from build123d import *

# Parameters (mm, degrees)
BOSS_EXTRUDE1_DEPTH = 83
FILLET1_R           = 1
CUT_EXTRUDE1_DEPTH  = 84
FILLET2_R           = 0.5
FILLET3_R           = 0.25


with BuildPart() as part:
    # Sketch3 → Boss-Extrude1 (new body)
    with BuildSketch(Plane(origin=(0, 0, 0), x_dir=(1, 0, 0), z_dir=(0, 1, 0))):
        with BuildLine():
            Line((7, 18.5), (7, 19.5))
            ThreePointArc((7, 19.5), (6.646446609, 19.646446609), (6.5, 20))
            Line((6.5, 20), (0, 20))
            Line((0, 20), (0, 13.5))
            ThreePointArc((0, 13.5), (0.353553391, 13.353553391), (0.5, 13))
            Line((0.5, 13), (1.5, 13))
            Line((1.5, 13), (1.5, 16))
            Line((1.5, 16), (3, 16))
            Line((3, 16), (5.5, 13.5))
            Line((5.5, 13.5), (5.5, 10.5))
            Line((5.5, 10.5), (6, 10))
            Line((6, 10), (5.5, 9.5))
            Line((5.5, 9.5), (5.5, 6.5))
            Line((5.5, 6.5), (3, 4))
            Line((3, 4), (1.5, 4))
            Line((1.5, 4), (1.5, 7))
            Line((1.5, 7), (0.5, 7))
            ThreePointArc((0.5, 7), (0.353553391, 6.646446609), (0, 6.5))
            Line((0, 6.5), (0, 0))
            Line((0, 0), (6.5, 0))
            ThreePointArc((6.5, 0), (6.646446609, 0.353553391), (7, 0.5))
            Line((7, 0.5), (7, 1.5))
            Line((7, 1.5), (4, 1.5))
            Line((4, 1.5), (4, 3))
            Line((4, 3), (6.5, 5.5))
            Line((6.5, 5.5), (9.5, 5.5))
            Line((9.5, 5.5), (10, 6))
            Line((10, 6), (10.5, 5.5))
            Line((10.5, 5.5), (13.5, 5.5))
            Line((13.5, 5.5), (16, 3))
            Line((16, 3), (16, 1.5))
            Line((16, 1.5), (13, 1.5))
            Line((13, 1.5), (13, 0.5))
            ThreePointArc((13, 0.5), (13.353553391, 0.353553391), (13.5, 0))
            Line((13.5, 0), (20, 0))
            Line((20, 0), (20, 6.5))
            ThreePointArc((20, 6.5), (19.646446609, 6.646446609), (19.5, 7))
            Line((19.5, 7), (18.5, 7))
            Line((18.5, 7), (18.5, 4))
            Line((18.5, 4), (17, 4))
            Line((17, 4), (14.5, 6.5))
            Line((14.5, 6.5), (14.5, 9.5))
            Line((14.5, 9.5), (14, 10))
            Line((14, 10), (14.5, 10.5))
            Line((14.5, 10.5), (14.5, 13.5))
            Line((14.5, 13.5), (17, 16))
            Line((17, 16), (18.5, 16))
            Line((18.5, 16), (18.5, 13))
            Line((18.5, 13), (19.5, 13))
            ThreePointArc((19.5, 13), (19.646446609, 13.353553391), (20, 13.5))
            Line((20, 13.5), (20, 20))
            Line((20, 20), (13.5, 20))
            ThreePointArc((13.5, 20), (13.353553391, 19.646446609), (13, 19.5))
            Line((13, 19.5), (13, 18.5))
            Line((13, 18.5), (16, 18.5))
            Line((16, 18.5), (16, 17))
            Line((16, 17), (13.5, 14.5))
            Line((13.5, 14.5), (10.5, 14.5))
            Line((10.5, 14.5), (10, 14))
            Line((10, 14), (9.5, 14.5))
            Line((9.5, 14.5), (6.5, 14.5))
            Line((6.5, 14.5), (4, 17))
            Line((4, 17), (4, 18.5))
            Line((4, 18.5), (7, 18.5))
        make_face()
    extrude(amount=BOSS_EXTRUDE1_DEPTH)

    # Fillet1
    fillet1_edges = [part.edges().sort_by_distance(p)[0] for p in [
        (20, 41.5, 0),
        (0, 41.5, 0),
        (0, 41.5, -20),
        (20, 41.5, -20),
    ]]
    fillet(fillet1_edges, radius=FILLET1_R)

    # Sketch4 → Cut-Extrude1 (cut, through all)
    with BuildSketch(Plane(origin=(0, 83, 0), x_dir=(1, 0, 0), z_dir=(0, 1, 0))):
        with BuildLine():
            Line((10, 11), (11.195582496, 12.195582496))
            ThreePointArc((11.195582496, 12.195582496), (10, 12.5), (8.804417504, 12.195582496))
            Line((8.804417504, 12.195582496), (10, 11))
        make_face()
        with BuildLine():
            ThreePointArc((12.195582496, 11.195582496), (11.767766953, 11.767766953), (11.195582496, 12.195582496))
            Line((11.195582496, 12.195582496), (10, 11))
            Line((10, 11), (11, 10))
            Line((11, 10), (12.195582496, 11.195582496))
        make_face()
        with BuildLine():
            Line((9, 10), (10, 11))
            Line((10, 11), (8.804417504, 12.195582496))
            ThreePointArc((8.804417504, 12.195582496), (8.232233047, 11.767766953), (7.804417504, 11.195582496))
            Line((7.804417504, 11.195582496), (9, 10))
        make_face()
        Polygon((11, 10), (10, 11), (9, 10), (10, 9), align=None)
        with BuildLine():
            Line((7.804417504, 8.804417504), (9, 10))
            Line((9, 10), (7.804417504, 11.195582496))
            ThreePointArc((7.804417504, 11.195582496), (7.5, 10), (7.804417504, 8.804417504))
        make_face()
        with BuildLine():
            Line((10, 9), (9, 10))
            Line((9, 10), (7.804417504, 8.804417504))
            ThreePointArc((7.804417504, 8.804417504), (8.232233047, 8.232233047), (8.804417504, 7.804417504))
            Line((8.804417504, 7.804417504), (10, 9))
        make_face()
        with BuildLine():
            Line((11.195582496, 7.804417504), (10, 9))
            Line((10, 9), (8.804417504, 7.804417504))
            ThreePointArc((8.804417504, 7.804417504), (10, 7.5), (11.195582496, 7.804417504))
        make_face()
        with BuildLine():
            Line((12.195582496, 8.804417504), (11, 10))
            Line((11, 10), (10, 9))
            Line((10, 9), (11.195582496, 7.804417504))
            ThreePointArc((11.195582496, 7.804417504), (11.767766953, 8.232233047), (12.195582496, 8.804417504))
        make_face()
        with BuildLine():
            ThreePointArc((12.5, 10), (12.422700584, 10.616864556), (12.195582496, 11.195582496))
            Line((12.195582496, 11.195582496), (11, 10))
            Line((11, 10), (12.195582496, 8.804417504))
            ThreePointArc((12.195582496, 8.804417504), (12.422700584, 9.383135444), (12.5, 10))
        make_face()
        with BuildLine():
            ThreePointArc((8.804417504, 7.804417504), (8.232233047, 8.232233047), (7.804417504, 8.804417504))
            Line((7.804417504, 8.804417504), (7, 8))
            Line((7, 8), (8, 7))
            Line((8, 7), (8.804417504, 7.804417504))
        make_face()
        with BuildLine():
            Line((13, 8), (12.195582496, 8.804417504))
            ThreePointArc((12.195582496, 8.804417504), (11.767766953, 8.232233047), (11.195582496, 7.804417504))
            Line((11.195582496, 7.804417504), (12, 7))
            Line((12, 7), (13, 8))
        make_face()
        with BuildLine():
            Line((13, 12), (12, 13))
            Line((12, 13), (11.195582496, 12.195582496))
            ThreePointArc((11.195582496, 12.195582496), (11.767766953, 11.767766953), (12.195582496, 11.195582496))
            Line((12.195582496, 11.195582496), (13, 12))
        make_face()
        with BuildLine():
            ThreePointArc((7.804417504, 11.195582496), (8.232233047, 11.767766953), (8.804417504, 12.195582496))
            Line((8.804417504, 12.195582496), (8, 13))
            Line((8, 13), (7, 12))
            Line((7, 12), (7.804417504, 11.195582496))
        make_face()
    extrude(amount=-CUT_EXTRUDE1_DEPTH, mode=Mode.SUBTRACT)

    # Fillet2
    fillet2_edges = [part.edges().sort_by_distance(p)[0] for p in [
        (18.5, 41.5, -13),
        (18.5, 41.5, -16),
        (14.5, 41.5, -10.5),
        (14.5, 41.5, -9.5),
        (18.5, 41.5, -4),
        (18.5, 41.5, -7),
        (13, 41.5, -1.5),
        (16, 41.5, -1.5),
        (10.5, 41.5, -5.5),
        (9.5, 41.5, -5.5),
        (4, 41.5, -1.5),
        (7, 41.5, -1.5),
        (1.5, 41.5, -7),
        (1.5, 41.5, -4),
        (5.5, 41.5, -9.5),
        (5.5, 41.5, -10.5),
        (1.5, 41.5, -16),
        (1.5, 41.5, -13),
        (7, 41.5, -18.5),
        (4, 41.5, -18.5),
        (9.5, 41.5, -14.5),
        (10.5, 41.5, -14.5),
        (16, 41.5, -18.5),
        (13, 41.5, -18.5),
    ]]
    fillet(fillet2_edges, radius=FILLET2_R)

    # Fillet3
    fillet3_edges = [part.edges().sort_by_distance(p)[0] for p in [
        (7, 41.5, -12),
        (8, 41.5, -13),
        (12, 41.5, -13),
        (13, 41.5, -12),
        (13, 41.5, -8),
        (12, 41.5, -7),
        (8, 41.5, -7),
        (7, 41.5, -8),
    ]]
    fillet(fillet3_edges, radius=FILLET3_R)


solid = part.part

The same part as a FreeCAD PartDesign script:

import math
import FreeCAD as App
import Part
import Sketcher
from FreeCAD import Vector


def edges_at(feature, points):
    """Names of the edges that pass closest to the given points."""
    edges = feature.Shape.Edges
    near = lambda p: min(range(len(edges)), key=lambda i: edges[i].distToShape(Part.Vertex(*p))[0])
    return sorted({f"Edge{near(p) + 1}" for p in points})

doc = App.newDocument("Part")
body = doc.addObject("PartDesign::Body", "Body")

# Sketch on XZ plane
sketch1 = doc.addObject("Sketcher::SketchObject", "Sketch")
body.addObject(sketch1)
sketch1.AttachmentSupport = (doc.XZ_Plane, [""])
sketch1.MapMode = "FlatFace"
sketch1.addGeometry(Part.LineSegment(Vector(7, -18.5, 0), Vector(7, -19.5, 0)), False)
sketch1.addGeometry(Part.ArcOfCircle(Part.Circle(Vector(7, -20, 0), Vector(0, 0, 1), 0.5), math.radians(90), math.radians(180)), False)
sketch1.addGeometry(Part.LineSegment(Vector(6.5, -20, 0), Vector(0, -20, 0)), False)
sketch1.addGeometry(Part.LineSegment(Vector(0, -20, 0), Vector(0, -13.5, 0)), False)
sketch1.addGeometry(Part.ArcOfCircle(Part.Circle(Vector(0, -13, 0), Vector(0, 0, 1), 0.5), math.radians(-90), math.radians(0)), False)
sketch1.addGeometry(Part.LineSegment(Vector(0.5, -13, 0), Vector(1.5, -13, 0)), False)
sketch1.addGeometry(Part.LineSegment(Vector(1.5, -13, 0), Vector(1.5, -16, 0)), False)
sketch1.addGeometry(Part.LineSegment(Vector(1.5, -16, 0), Vector(3, -16, 0)), False)
sketch1.addGeometry(Part.LineSegment(Vector(3, -16, 0), Vector(5.5, -13.5, 0)), False)
sketch1.addGeometry(Part.LineSegment(Vector(5.5, -13.5, 0), Vector(5.5, -10.5, 0)), False)
sketch1.addGeometry(Part.LineSegment(Vector(5.5, -10.5, 0), Vector(6, -10, 0)), False)
sketch1.addGeometry(Part.LineSegment(Vector(6, -10, 0), Vector(5.5, -9.5, 0)), False)
sketch1.addGeometry(Part.LineSegment(Vector(5.5, -9.5, 0), Vector(5.5, -6.5, 0)), False)
sketch1.addGeometry(Part.LineSegment(Vector(5.5, -6.5, 0), Vector(3, -4, 0)), False)
sketch1.addGeometry(Part.LineSegment(Vector(3, -4, 0), Vector(1.5, -4, 0)), False)
sketch1.addGeometry(Part.LineSegment(Vector(1.5, -4, 0), Vector(1.5, -7, 0)), False)
sketch1.addGeometry(Part.LineSegment(Vector(1.5, -7, 0), Vector(0.5, -7, 0)), False)
sketch1.addGeometry(Part.ArcOfCircle(Part.Circle(Vector(0, -7, 0), Vector(0, 0, 1), 0.5), math.radians(0), math.radians(90)), False)
sketch1.addGeometry(Part.LineSegment(Vector(0, -6.5, 0), Vector(0, 0, 0)), False)
sketch1.addGeometry(Part.LineSegment(Vector(0, 0, 0), Vector(6.5, 0, 0)), False)
sketch1.addGeometry(Part.ArcOfCircle(Part.Circle(Vector(7, 0, 0), Vector(0, 0, 1), 0.5), math.radians(180), math.radians(270)), False)
sketch1.addGeometry(Part.LineSegment(Vector(7, -0.5, 0), Vector(7, -1.5, 0)), False)
sketch1.addGeometry(Part.LineSegment(Vector(7, -1.5, 0), Vector(4, -1.5, 0)), False)
sketch1.addGeometry(Part.LineSegment(Vector(4, -1.5, 0), Vector(4, -3, 0)), False)
sketch1.addGeometry(Part.LineSegment(Vector(4, -3, 0), Vector(6.5, -5.5, 0)), False)
sketch1.addGeometry(Part.LineSegment(Vector(6.5, -5.5, 0), Vector(9.5, -5.5, 0)), False)
sketch1.addGeometry(Part.LineSegment(Vector(9.5, -5.5, 0), Vector(10, -6, 0)), False)
sketch1.addGeometry(Part.LineSegment(Vector(10, -6, 0), Vector(10.5, -5.5, 0)), False)
sketch1.addGeometry(Part.LineSegment(Vector(10.5, -5.5, 0), Vector(13.5, -5.5, 0)), False)
sketch1.addGeometry(Part.LineSegment(Vector(13.5, -5.5, 0), Vector(16, -3, 0)), False)
sketch1.addGeometry(Part.LineSegment(Vector(16, -3, 0), Vector(16, -1.5, 0)), False)
sketch1.addGeometry(Part.LineSegment(Vector(16, -1.5, 0), Vector(13, -1.5, 0)), False)
sketch1.addGeometry(Part.LineSegment(Vector(13, -1.5, 0), Vector(13, -0.5, 0)), False)
sketch1.addGeometry(Part.ArcOfCircle(Part.Circle(Vector(13, 0, 0), Vector(0, 0, 1), 0.5), math.radians(-90), math.radians(0)), False)
sketch1.addGeometry(Part.LineSegment(Vector(13.5, 0, 0), Vector(20, 0, 0)), False)
sketch1.addGeometry(Part.LineSegment(Vector(20, 0, 0), Vector(20, -6.5, 0)), False)
sketch1.addGeometry(Part.ArcOfCircle(Part.Circle(Vector(20, -7, 0), Vector(0, 0, 1), 0.5), math.radians(90), math.radians(180)), False)
sketch1.addGeometry(Part.LineSegment(Vector(19.5, -7, 0), Vector(18.5, -7, 0)), False)
sketch1.addGeometry(Part.LineSegment(Vector(18.5, -7, 0), Vector(18.5, -4, 0)), False)
sketch1.addGeometry(Part.LineSegment(Vector(18.5, -4, 0), Vector(17, -4, 0)), False)
sketch1.addGeometry(Part.LineSegment(Vector(17, -4, 0), Vector(14.5, -6.5, 0)), False)
sketch1.addGeometry(Part.LineSegment(Vector(14.5, -6.5, 0), Vector(14.5, -9.5, 0)), False)
sketch1.addGeometry(Part.LineSegment(Vector(14.5, -9.5, 0), Vector(14, -10, 0)), False)
sketch1.addGeometry(Part.LineSegment(Vector(14, -10, 0), Vector(14.5, -10.5, 0)), False)
sketch1.addGeometry(Part.LineSegment(Vector(14.5, -10.5, 0), Vector(14.5, -13.5, 0)), False)
sketch1.addGeometry(Part.LineSegment(Vector(14.5, -13.5, 0), Vector(17, -16, 0)), False)
sketch1.addGeometry(Part.LineSegment(Vector(17, -16, 0), Vector(18.5, -16, 0)), False)
sketch1.addGeometry(Part.LineSegment(Vector(18.5, -16, 0), Vector(18.5, -13, 0)), False)
sketch1.addGeometry(Part.LineSegment(Vector(18.5, -13, 0), Vector(19.5, -13, 0)), False)
sketch1.addGeometry(Part.ArcOfCircle(Part.Circle(Vector(20, -13, 0), Vector(0, 0, 1), 0.5), math.radians(180), math.radians(270)), False)
sketch1.addGeometry(Part.LineSegment(Vector(20, -13.5, 0), Vector(20, -20, 0)), False)
sketch1.addGeometry(Part.LineSegment(Vector(20, -20, 0), Vector(13.5, -20, 0)), False)
sketch1.addGeometry(Part.ArcOfCircle(Part.Circle(Vector(13, -20, 0), Vector(0, 0, 1), 0.5), math.radians(0), math.radians(90)), False)
sketch1.addGeometry(Part.LineSegment(Vector(13, -19.5, 0), Vector(13, -18.5, 0)), False)
sketch1.addGeometry(Part.LineSegment(Vector(13, -18.5, 0), Vector(16, -18.5, 0)), False)
sketch1.addGeometry(Part.LineSegment(Vector(16, -18.5, 0), Vector(16, -17, 0)), False)
sketch1.addGeometry(Part.LineSegment(Vector(16, -17, 0), Vector(13.5, -14.5, 0)), False)
sketch1.addGeometry(Part.LineSegment(Vector(13.5, -14.5, 0), Vector(10.5, -14.5, 0)), False)
sketch1.addGeometry(Part.LineSegment(Vector(10.5, -14.5, 0), Vector(10, -14, 0)), False)
sketch1.addGeometry(Part.LineSegment(Vector(10, -14, 0), Vector(9.5, -14.5, 0)), False)
sketch1.addGeometry(Part.LineSegment(Vector(9.5, -14.5, 0), Vector(6.5, -14.5, 0)), False)
sketch1.addGeometry(Part.LineSegment(Vector(6.5, -14.5, 0), Vector(4, -17, 0)), False)
sketch1.addGeometry(Part.LineSegment(Vector(4, -17, 0), Vector(4, -18.5, 0)), False)
sketch1.addGeometry(Part.LineSegment(Vector(4, -18.5, 0), Vector(7, -18.5, 0)), False)
sketch1.addConstraint(Sketcher.Constraint("Coincident", 0, 2, 1, 1))
sketch1.addConstraint(Sketcher.Constraint("Coincident", 1, 2, 2, 1))
sketch1.addConstraint(Sketcher.Constraint("Coincident", 2, 2, 3, 1))
sketch1.addConstraint(Sketcher.Constraint("Coincident", 3, 2, 4, 1))
sketch1.addConstraint(Sketcher.Constraint("Coincident", 4, 2, 5, 1))
sketch1.addConstraint(Sketcher.Constraint("Coincident", 5, 2, 6, 1))
sketch1.addConstraint(Sketcher.Constraint("Coincident", 6, 2, 7, 1))
sketch1.addConstraint(Sketcher.Constraint("Coincident", 7, 2, 8, 1))
sketch1.addConstraint(Sketcher.Constraint("Coincident", 8, 2, 9, 1))
sketch1.addConstraint(Sketcher.Constraint("Coincident", 9, 2, 10, 1))
sketch1.addConstraint(Sketcher.Constraint("Coincident", 10, 2, 11, 1))
sketch1.addConstraint(Sketcher.Constraint("Coincident", 11, 2, 12, 1))
sketch1.addConstraint(Sketcher.Constraint("Coincident", 12, 2, 13, 1))
sketch1.addConstraint(Sketcher.Constraint("Coincident", 13, 2, 14, 1))
sketch1.addConstraint(Sketcher.Constraint("Coincident", 14, 2, 15, 1))
sketch1.addConstraint(Sketcher.Constraint("Coincident", 15, 2, 16, 1))
sketch1.addConstraint(Sketcher.Constraint("Coincident", 16, 2, 17, 1))
sketch1.addConstraint(Sketcher.Constraint("Coincident", 17, 2, 18, 1))
sketch1.addConstraint(Sketcher.Constraint("Coincident", 18, 2, 19, 1))
sketch1.addConstraint(Sketcher.Constraint("Coincident", 19, 2, 20, 1))
sketch1.addConstraint(Sketcher.Constraint("Coincident", 20, 2, 21, 1))
sketch1.addConstraint(Sketcher.Constraint("Coincident", 21, 2, 22, 1))
sketch1.addConstraint(Sketcher.Constraint("Coincident", 22, 2, 23, 1))
sketch1.addConstraint(Sketcher.Constraint("Coincident", 23, 2, 24, 1))
sketch1.addConstraint(Sketcher.Constraint("Coincident", 24, 2, 25, 1))
sketch1.addConstraint(Sketcher.Constraint("Coincident", 25, 2, 26, 1))
sketch1.addConstraint(Sketcher.Constraint("Coincident", 26, 2, 27, 1))
sketch1.addConstraint(Sketcher.Constraint("Coincident", 27, 2, 28, 1))
sketch1.addConstraint(Sketcher.Constraint("Coincident", 28, 2, 29, 1))
sketch1.addConstraint(Sketcher.Constraint("Coincident", 29, 2, 30, 1))
sketch1.addConstraint(Sketcher.Constraint("Coincident", 30, 2, 31, 1))
sketch1.addConstraint(Sketcher.Constraint("Coincident", 31, 2, 32, 1))
sketch1.addConstraint(Sketcher.Constraint("Coincident", 32, 2, 33, 1))
sketch1.addConstraint(Sketcher.Constraint("Coincident", 33, 2, 34, 1))
sketch1.addConstraint(Sketcher.Constraint("Coincident", 34, 2, 35, 1))
sketch1.addConstraint(Sketcher.Constraint("Coincident", 35, 2, 36, 1))
sketch1.addConstraint(Sketcher.Constraint("Coincident", 36, 2, 37, 1))
sketch1.addConstraint(Sketcher.Constraint("Coincident", 37, 2, 38, 1))
sketch1.addConstraint(Sketcher.Constraint("Coincident", 38, 2, 39, 1))
sketch1.addConstraint(Sketcher.Constraint("Coincident", 39, 2, 40, 1))
sketch1.addConstraint(Sketcher.Constraint("Coincident", 40, 2, 41, 1))
sketch1.addConstraint(Sketcher.Constraint("Coincident", 41, 2, 42, 1))
sketch1.addConstraint(Sketcher.Constraint("Coincident", 42, 2, 43, 1))
sketch1.addConstraint(Sketcher.Constraint("Coincident", 43, 2, 44, 1))
sketch1.addConstraint(Sketcher.Constraint("Coincident", 44, 2, 45, 1))
sketch1.addConstraint(Sketcher.Constraint("Coincident", 45, 2, 46, 1))
sketch1.addConstraint(Sketcher.Constraint("Coincident", 46, 2, 47, 1))
sketch1.addConstraint(Sketcher.Constraint("Coincident", 47, 2, 48, 1))
sketch1.addConstraint(Sketcher.Constraint("Coincident", 48, 2, 49, 1))
sketch1.addConstraint(Sketcher.Constraint("Coincident", 49, 2, 50, 1))
sketch1.addConstraint(Sketcher.Constraint("Coincident", 50, 2, 51, 1))
sketch1.addConstraint(Sketcher.Constraint("Coincident", 51, 2, 52, 1))
sketch1.addConstraint(Sketcher.Constraint("Coincident", 52, 2, 53, 1))
sketch1.addConstraint(Sketcher.Constraint("Coincident", 53, 2, 54, 1))
sketch1.addConstraint(Sketcher.Constraint("Coincident", 54, 2, 55, 1))
sketch1.addConstraint(Sketcher.Constraint("Coincident", 55, 2, 56, 1))
sketch1.addConstraint(Sketcher.Constraint("Coincident", 56, 2, 57, 1))
sketch1.addConstraint(Sketcher.Constraint("Coincident", 57, 2, 58, 1))
sketch1.addConstraint(Sketcher.Constraint("Coincident", 58, 2, 59, 1))
sketch1.addConstraint(Sketcher.Constraint("Coincident", 59, 2, 60, 1))
sketch1.addConstraint(Sketcher.Constraint("Coincident", 60, 2, 61, 1))
sketch1.addConstraint(Sketcher.Constraint("Coincident", 61, 2, 62, 1))
sketch1.addConstraint(Sketcher.Constraint("Coincident", 62, 2, 63, 1))
sketch1.addConstraint(Sketcher.Constraint("Coincident", 63, 2, 0, 1))
sketch1.addConstraint(Sketcher.Constraint("Vertical", 0))
sketch1.addConstraint(Sketcher.Constraint("Horizontal", 2))
sketch1.addConstraint(Sketcher.Constraint("Vertical", 3))
sketch1.addConstraint(Sketcher.Constraint("Horizontal", 5))
sketch1.addConstraint(Sketcher.Constraint("Vertical", 6))
sketch1.addConstraint(Sketcher.Constraint("Horizontal", 7))
sketch1.addConstraint(Sketcher.Constraint("Vertical", 9))
sketch1.addConstraint(Sketcher.Constraint("Vertical", 12))
sketch1.addConstraint(Sketcher.Constraint("Horizontal", 14))
sketch1.addConstraint(Sketcher.Constraint("Vertical", 15))
sketch1.addConstraint(Sketcher.Constraint("Horizontal", 16))
sketch1.addConstraint(Sketcher.Constraint("Vertical", 18))
sketch1.addConstraint(Sketcher.Constraint("Horizontal", 19))
sketch1.addConstraint(Sketcher.Constraint("Vertical", 21))
sketch1.addConstraint(Sketcher.Constraint("Horizontal", 22))
sketch1.addConstraint(Sketcher.Constraint("Vertical", 23))
sketch1.addConstraint(Sketcher.Constraint("Horizontal", 25))
sketch1.addConstraint(Sketcher.Constraint("Horizontal", 28))
sketch1.addConstraint(Sketcher.Constraint("Vertical", 30))
sketch1.addConstraint(Sketcher.Constraint("Horizontal", 31))
sketch1.addConstraint(Sketcher.Constraint("Vertical", 32))
sketch1.addConstraint(Sketcher.Constraint("Horizontal", 34))
sketch1.addConstraint(Sketcher.Constraint("Vertical", 35))
sketch1.addConstraint(Sketcher.Constraint("Horizontal", 37))
sketch1.addConstraint(Sketcher.Constraint("Vertical", 38))
sketch1.addConstraint(Sketcher.Constraint("Horizontal", 39))
sketch1.addConstraint(Sketcher.Constraint("Vertical", 41))
sketch1.addConstraint(Sketcher.Constraint("Vertical", 44))
sketch1.addConstraint(Sketcher.Constraint("Horizontal", 46))
sketch1.addConstraint(Sketcher.Constraint("Vertical", 47))
sketch1.addConstraint(Sketcher.Constraint("Horizontal", 48))
sketch1.addConstraint(Sketcher.Constraint("Vertical", 50))
sketch1.addConstraint(Sketcher.Constraint("Horizontal", 51))
sketch1.addConstraint(Sketcher.Constraint("Vertical", 53))
sketch1.addConstraint(Sketcher.Constraint("Horizontal", 54))
sketch1.addConstraint(Sketcher.Constraint("Vertical", 55))
sketch1.addConstraint(Sketcher.Constraint("Horizontal", 57))
sketch1.addConstraint(Sketcher.Constraint("Horizontal", 60))
sketch1.addConstraint(Sketcher.Constraint("Vertical", 62))
sketch1.addConstraint(Sketcher.Constraint("Horizontal", 63))
sketch1.addConstraint(Sketcher.Constraint("Coincident", 18, 2, -1, 1))
sketch1.addConstraint(Sketcher.Constraint("Equal", 1, 4))
sketch1.addConstraint(Sketcher.Constraint("Equal", 4, 17))
sketch1.addConstraint(Sketcher.Constraint("Equal", 17, 20))
sketch1.addConstraint(Sketcher.Constraint("Equal", 20, 33))
sketch1.addConstraint(Sketcher.Constraint("Equal", 33, 36))
sketch1.addConstraint(Sketcher.Constraint("Equal", 36, 49))
sketch1.addConstraint(Sketcher.Constraint("Equal", 49, 52))
sketch1.addConstraint(Sketcher.Constraint("PointOnObject", 4, 3, -2))
sketch1.addConstraint(Sketcher.Constraint("PointOnObject", 17, 3, -2))
sketch1.addConstraint(Sketcher.Constraint("PointOnObject", 20, 3, -1))
sketch1.addConstraint(Sketcher.Constraint("PointOnObject", 33, 3, -1))
sketch1.addConstraint(Sketcher.Constraint("PointOnObject", 2, 2, -2))
sketch1.addConstraint(Sketcher.Constraint("PointOnObject", 33, 2, -1))
sketch1.addConstraint(Sketcher.Constraint("Parallel", 8, 10))
sketch1.addConstraint(Sketcher.Constraint("Perpendicular", 10, 11))
sketch1.addConstraint(Sketcher.Constraint("Parallel", 11, 13))
sketch1.addConstraint(Sketcher.Constraint("Parallel", 13, 24))
sketch1.addConstraint(Sketcher.Constraint("Parallel", 24, 26))
sketch1.addConstraint(Sketcher.Constraint("Perpendicular", 26, 27))
sketch1.addConstraint(Sketcher.Constraint("Parallel", 27, 29))
sketch1.addConstraint(Sketcher.Constraint("Parallel", 29, 40))
sketch1.addConstraint(Sketcher.Constraint("Parallel", 40, 42))
sketch1.addConstraint(Sketcher.Constraint("Perpendicular", 42, 43))
sketch1.addConstraint(Sketcher.Constraint("Parallel", 43, 45))
sketch1.addConstraint(Sketcher.Constraint("Parallel", 45, 56))
sketch1.addConstraint(Sketcher.Constraint("Parallel", 56, 58))
sketch1.addConstraint(Sketcher.Constraint("Perpendicular", 58, 59))
sketch1.addConstraint(Sketcher.Constraint("Parallel", 59, 61))
sketch1.addConstraint(Sketcher.Constraint("Horizontal", 17, 3, 36, 3))
sketch1.addConstraint(Sketcher.Constraint("Horizontal", 4, 3, 49, 3))
sketch1.addConstraint(Sketcher.Constraint("Horizontal", 1, 3, 52, 3))
sketch1.addConstraint(Sketcher.Constraint("Horizontal", 52, 3, 1, 2))
sketch1.addConstraint(Sketcher.Constraint("Horizontal", 49, 3, 4, 2))
sketch1.addConstraint(Sketcher.Constraint("Horizontal", 3, 2, 8, 2))
sketch1.addConstraint(Sketcher.Constraint("Horizontal", 36, 3, 15, 2))
sketch1.addConstraint(Sketcher.Constraint("Horizontal", 12, 2, 17, 2))
sketch1.addConstraint(Sketcher.Constraint("Horizontal", 25, 2, 27, 2))
sketch1.addConstraint(Sketcher.Constraint("Horizontal", 23, 2, 29, 2))
sketch1.addConstraint(Sketcher.Constraint("Horizontal", 22, 2, 30, 2))
sketch1.addConstraint(Sketcher.Constraint("Horizontal", 16, 2, 36, 2))
sketch1.addConstraint(Sketcher.Constraint("Horizontal", 14, 2, 38, 2))
sketch1.addConstraint(Sketcher.Constraint("Horizontal", 35, 2, 40, 2))
sketch1.addConstraint(Sketcher.Constraint("Horizontal", 11, 2, 41, 2))
sketch1.addConstraint(Sketcher.Constraint("Horizontal", 10, 2, 42, 2))
sketch1.addConstraint(Sketcher.Constraint("Horizontal", 9, 2, 43, 2))
sketch1.addConstraint(Sketcher.Constraint("Horizontal", 8, 2, 44, 2))
sketch1.addConstraint(Sketcher.Constraint("Horizontal", 7, 2, 45, 2))
sketch1.addConstraint(Sketcher.Constraint("Horizontal", 5, 2, 47, 2))
sketch1.addConstraint(Sketcher.Constraint("Horizontal", 2, 2, 50, 2))
sketch1.addConstraint(Sketcher.Constraint("Horizontal", 57, 2, 59, 2))
sketch1.addConstraint(Sketcher.Constraint("Horizontal", 55, 2, 61, 2))
sketch1.addConstraint(Sketcher.Constraint("Horizontal", 54, 2, 62, 2))
sketch1.addConstraint(Sketcher.Constraint("Vertical", 1, 3, 20, 3))
sketch1.addConstraint(Sketcher.Constraint("Vertical", 36, 3, 49, 3))
sketch1.addConstraint(Sketcher.Constraint("Vertical", 33, 3, 52, 3))
sketch1.addConstraint(Sketcher.Constraint("Vertical", 20, 3, 0, 2))
sketch1.addConstraint(Sketcher.Constraint("Vertical", 9, 2, 11, 2))
sketch1.addConstraint(Sketcher.Constraint("Vertical", 7, 2, 13, 2))
sketch1.addConstraint(Sketcher.Constraint("Vertical", 6, 2, 14, 2))
sketch1.addConstraint(Sketcher.Constraint("Vertical", 0, 2, 20, 2))
sketch1.addConstraint(Sketcher.Constraint("Vertical", 19, 2, 24, 2))
sketch1.addConstraint(Sketcher.Constraint("Vertical", 52, 3, 31, 2))
sketch1.addConstraint(Sketcher.Constraint("Vertical", 28, 2, 33, 2))
sketch1.addConstraint(Sketcher.Constraint("Vertical", 49, 3, 34, 2))
sketch1.addConstraint(Sketcher.Constraint("Vertical", 41, 2, 43, 2))
sketch1.addConstraint(Sketcher.Constraint("Vertical", 38, 2, 46, 2))
sketch1.addConstraint(Sketcher.Constraint("Vertical", 35, 2, 49, 2))
sketch1.addConstraint(Sketcher.Constraint("Vertical", 32, 2, 52, 2))
sketch1.addConstraint(Sketcher.Constraint("Vertical", 30, 2, 54, 2))
sketch1.addConstraint(Sketcher.Constraint("Vertical", 51, 2, 56, 2))
sketch1.addConstraint(Sketcher.Constraint("Vertical", 27, 2, 57, 2))
sketch1.addConstraint(Sketcher.Constraint("Vertical", 26, 2, 58, 2))
sketch1.addConstraint(Sketcher.Constraint("Vertical", 24, 2, 60, 2))
sketch1.addConstraint(Sketcher.Constraint("Equal", 22, 25))
sketch1.addConstraint(Sketcher.Constraint("Equal", 25, 28))
sketch1.addConstraint(Sketcher.Constraint("Equal", 19, 34))
sketch1.addConstraint(Sketcher.Constraint("Equal", 16, 37))
sketch1.addConstraint(Sketcher.Constraint("Equal", 14, 39))
sketch1.addConstraint(Sketcher.Constraint("Equal", 48, 0))
sketch1.addConstraint(Sketcher.Constraint("Equal", 51, 3))
sketch1.addConstraint(Sketcher.Constraint("Equal", 63, 6))
sketch1.addConstraint(Sketcher.Constraint("Equal", 6, 9))
sketch1.addConstraint(Sketcher.Constraint("Equal", 9, 12))
sketch1.addConstraint(Sketcher.Constraint("Equal", 3, 18))
sketch1.addConstraint(Sketcher.Constraint("Equal", 0, 21))
sketch1.addConstraint(Sketcher.Constraint("Equal", 46, 23))
sketch1.addConstraint(Sketcher.Constraint("Equal", 30, 55))
sketch1.addConstraint(Sketcher.Constraint("Equal", 11, 26))
sketch1.addConstraint(Sketcher.Constraint("Radius", 1, 0.5))
sketch1.addConstraint(Sketcher.Constraint("DistanceX", 5, 1, 5, 2, 1.0))
sketch1.addConstraint(Sketcher.Constraint("DistanceX", 22, 2, 22, 1, 3.0))
sketch1.addConstraint(Sketcher.Constraint("DistanceX", 2, 2, 2, 1, 6.5))
sketch1.addConstraint(Sketcher.Constraint("DistanceX", 7, 1, 7, 2, 1.5))
sketch1.addConstraint(Sketcher.Constraint("DistanceY", 1, 3, -1, 1, 20.0))
pad1 = doc.addObject("PartDesign::Pad", "Pad")
body.addObject(pad1)
pad1.Profile = sketch1
pad1.Length = 83
pad1.Reversed = True
doc.recompute()

fillet = doc.addObject("PartDesign::Fillet", "Fillet")
body.addObject(fillet)
fillet.Base = (pad1, edges_at(pad1, [
    (20, 41.5, 0),
    (0, 41.5, 0),
    (0, 41.5, -20),
    (20, 41.5, -20),
]))
fillet.Radius = 1

# Sketch on XZ plane
sketch2 = doc.addObject("Sketcher::SketchObject", "Sketch001")
body.addObject(sketch2)
sketch2.AttachmentSupport = (doc.XZ_Plane, [""])
sketch2.MapMode = "FlatFace"
sketch2.AttachmentOffset = App.Placement(Vector(0, 0, -83), App.Rotation())
sketch2.addGeometry(Part.ArcOfCircle(Part.Circle(Vector(10, -10, 0), Vector(0, 0, 1), 2.5), math.radians(-118.57006), math.radians(-61.42994)), False)
sketch2.addGeometry(Part.LineSegment(Vector(8.804418, -12.195582, 0), Vector(8, -13, 0)), False)
sketch2.addGeometry(Part.LineSegment(Vector(8, -13, 0), Vector(7, -12, 0)), False)
sketch2.addGeometry(Part.LineSegment(Vector(7, -12, 0), Vector(7.804418, -11.195582, 0)), False)
sketch2.addGeometry(Part.ArcOfCircle(Part.Circle(Vector(10, -10, 0), Vector(0, 0, 1), 2.5), math.radians(151.42994), math.radians(208.57006)), False)
sketch2.addGeometry(Part.LineSegment(Vector(7.804418, -8.804418, 0), Vector(7, -8, 0)), False)
sketch2.addGeometry(Part.LineSegment(Vector(7, -8, 0), Vector(8, -7, 0)), False)
sketch2.addGeometry(Part.LineSegment(Vector(8, -7, 0), Vector(8.804418, -7.804418, 0)), False)
sketch2.addGeometry(Part.ArcOfCircle(Part.Circle(Vector(10, -10, 0), Vector(0, 0, 1), 2.5), math.radians(61.42994), math.radians(118.57006)), False)
sketch2.addGeometry(Part.LineSegment(Vector(11.195582, -7.804418, 0), Vector(12, -7, 0)), False)
sketch2.addGeometry(Part.LineSegment(Vector(12, -7, 0), Vector(13, -8, 0)), False)
sketch2.addGeometry(Part.LineSegment(Vector(13, -8, 0), Vector(12.195582, -8.804418, 0)), False)
sketch2.addGeometry(Part.ArcOfCircle(Part.Circle(Vector(10, -10, 0), Vector(0, 0, 1), 2.5), math.radians(0), math.radians(28.57006)), False)
sketch2.addGeometry(Part.ArcOfCircle(Part.Circle(Vector(10, -10, 0), Vector(0, 0, 1), 2.5), math.radians(-28.57006), math.radians(0)), False)
sketch2.addGeometry(Part.LineSegment(Vector(12.195582, -11.195582, 0), Vector(13, -12, 0)), False)
sketch2.addGeometry(Part.LineSegment(Vector(13, -12, 0), Vector(12, -13, 0)), False)
sketch2.addGeometry(Part.LineSegment(Vector(12, -13, 0), Vector(11.195582, -12.195582, 0)), False)
sketch2.addConstraint(Sketcher.Constraint("Coincident", 0, 1, 1, 1))
sketch2.addConstraint(Sketcher.Constraint("Coincident", 1, 2, 2, 1))
sketch2.addConstraint(Sketcher.Constraint("Coincident", 2, 2, 3, 1))
sketch2.addConstraint(Sketcher.Constraint("Coincident", 3, 2, 4, 2))
sketch2.addConstraint(Sketcher.Constraint("Coincident", 4, 1, 5, 1))
sketch2.addConstraint(Sketcher.Constraint("Coincident", 5, 2, 6, 1))
sketch2.addConstraint(Sketcher.Constraint("Coincident", 6, 2, 7, 1))
sketch2.addConstraint(Sketcher.Constraint("Coincident", 7, 2, 8, 2))
sketch2.addConstraint(Sketcher.Constraint("Coincident", 8, 1, 9, 1))
sketch2.addConstraint(Sketcher.Constraint("Coincident", 9, 2, 10, 1))
sketch2.addConstraint(Sketcher.Constraint("Coincident", 10, 2, 11, 1))
sketch2.addConstraint(Sketcher.Constraint("Coincident", 11, 2, 12, 2))
sketch2.addConstraint(Sketcher.Constraint("Tangent", 12, 1, 13, 2))
sketch2.addConstraint(Sketcher.Constraint("Coincident", 13, 1, 14, 1))
sketch2.addConstraint(Sketcher.Constraint("Coincident", 14, 2, 15, 1))
sketch2.addConstraint(Sketcher.Constraint("Coincident", 15, 2, 16, 1))
sketch2.addConstraint(Sketcher.Constraint("Coincident", 16, 2, 0, 2))
sketch2.addConstraint(Sketcher.Constraint("Coincident", 4, 3, 0, 3))
sketch2.addConstraint(Sketcher.Constraint("Coincident", 8, 3, 0, 3))
sketch2.addConstraint(Sketcher.Constraint("Coincident", 12, 3, 0, 3))
sketch2.addConstraint(Sketcher.Constraint("Equal", 0, 4))
sketch2.addConstraint(Sketcher.Constraint("Equal", 4, 8))
sketch2.addConstraint(Sketcher.Constraint("Equal", 8, 12))
sketch2.addConstraint(Sketcher.Constraint("Equal", 12, 13))
sketch2.addConstraint(Sketcher.Constraint("Perpendicular", 1, 2))
sketch2.addConstraint(Sketcher.Constraint("Perpendicular", 2, 3))
sketch2.addConstraint(Sketcher.Constraint("Perpendicular", 3, 5))
sketch2.addConstraint(Sketcher.Constraint("Perpendicular", 5, 6))
sketch2.addConstraint(Sketcher.Constraint("Perpendicular", 6, 7))
sketch2.addConstraint(Sketcher.Constraint("Perpendicular", 7, 9))
sketch2.addConstraint(Sketcher.Constraint("Perpendicular", 9, 10))
sketch2.addConstraint(Sketcher.Constraint("Perpendicular", 10, 11))
sketch2.addConstraint(Sketcher.Constraint("Perpendicular", 11, 14))
sketch2.addConstraint(Sketcher.Constraint("Perpendicular", 14, 15))
sketch2.addConstraint(Sketcher.Constraint("Perpendicular", 15, 16))
sketch2.addConstraint(Sketcher.Constraint("Horizontal", 7, 2, 8, 1))
sketch2.addConstraint(Sketcher.Constraint("Horizontal", 6, 2, 9, 2))
sketch2.addConstraint(Sketcher.Constraint("Horizontal", 5, 2, 10, 2))
sketch2.addConstraint(Sketcher.Constraint("Horizontal", 4, 1, 11, 2))
sketch2.addConstraint(Sketcher.Constraint("Horizontal", 13, 3, 12, 1))
sketch2.addConstraint(Sketcher.Constraint("Horizontal", 3, 2, 13, 1))
sketch2.addConstraint(Sketcher.Constraint("Horizontal", 2, 2, 14, 2))
sketch2.addConstraint(Sketcher.Constraint("Horizontal", 1, 2, 15, 2))
sketch2.addConstraint(Sketcher.Constraint("Vertical", 3, 2, 4, 1))
sketch2.addConstraint(Sketcher.Constraint("Vertical", 2, 2, 5, 2))
sketch2.addConstraint(Sketcher.Constraint("Vertical", 1, 2, 6, 2))
sketch2.addConstraint(Sketcher.Constraint("Equal", 1, 3))
sketch2.addConstraint(Sketcher.Constraint("Radius", 0, 2.5))
sketch2.addConstraint(Sketcher.Constraint("DistanceX", -1, 1, 0, 3, 10.0))
sketch2.addConstraint(Sketcher.Constraint("DistanceY", 0, 3, -1, 1, 10.0))
sketch2.addConstraint(Sketcher.Constraint("DistanceX", -1, 1, 1, 2, 8.0))
sketch2.addConstraint(Sketcher.Constraint("DistanceY", 1, 2, -1, 1, 13.0))
pocket1 = doc.addObject("PartDesign::Pocket", "Pocket")
body.addObject(pocket1)
pocket1.Profile = sketch2
pocket1.Type = "ThroughAll"
pocket1.Reversed = True
doc.recompute()

fillet2 = doc.addObject("PartDesign::Fillet", "Fillet001")
body.addObject(fillet2)
fillet2.Base = (pocket1, edges_at(pocket1, [
    (18.5, 41.5, -13),
    (18.5, 41.5, -16),
    (14.5, 41.5, -10.5),
    (14.5, 41.5, -9.5),
    (18.5, 41.5, -4),
    (18.5, 41.5, -7),
    (13, 41.5, -1.5),
    (16, 41.5, -1.5),
    (10.5, 41.5, -5.5),
    (9.5, 41.5, -5.5),
    (4, 41.5, -1.5),
    (7, 41.5, -1.5),
    (1.5, 41.5, -7),
    (1.5, 41.5, -4),
    (5.5, 41.5, -9.5),
    (5.5, 41.5, -10.5),
    (1.5, 41.5, -16),
    (1.5, 41.5, -13),
    (7, 41.5, -18.5),
    (4, 41.5, -18.5),
    (9.5, 41.5, -14.5),
    (10.5, 41.5, -14.5),
    (16, 41.5, -18.5),
    (13, 41.5, -18.5),
]))
fillet2.Radius = 0.5
doc.recompute()

fillet3 = doc.addObject("PartDesign::Fillet", "Fillet002")
body.addObject(fillet3)
fillet3.Base = (fillet2, edges_at(fillet2, [
    (7, 41.5, -12),
    (8, 41.5, -13),
    (12, 41.5, -13),
    (13, 41.5, -12),
    (13, 41.5, -8),
    (12, 41.5, -7),
    (8, 41.5, -7),
    (7, 41.5, -8),
]))
fillet3.Radius = 0.25

doc.recompute()
